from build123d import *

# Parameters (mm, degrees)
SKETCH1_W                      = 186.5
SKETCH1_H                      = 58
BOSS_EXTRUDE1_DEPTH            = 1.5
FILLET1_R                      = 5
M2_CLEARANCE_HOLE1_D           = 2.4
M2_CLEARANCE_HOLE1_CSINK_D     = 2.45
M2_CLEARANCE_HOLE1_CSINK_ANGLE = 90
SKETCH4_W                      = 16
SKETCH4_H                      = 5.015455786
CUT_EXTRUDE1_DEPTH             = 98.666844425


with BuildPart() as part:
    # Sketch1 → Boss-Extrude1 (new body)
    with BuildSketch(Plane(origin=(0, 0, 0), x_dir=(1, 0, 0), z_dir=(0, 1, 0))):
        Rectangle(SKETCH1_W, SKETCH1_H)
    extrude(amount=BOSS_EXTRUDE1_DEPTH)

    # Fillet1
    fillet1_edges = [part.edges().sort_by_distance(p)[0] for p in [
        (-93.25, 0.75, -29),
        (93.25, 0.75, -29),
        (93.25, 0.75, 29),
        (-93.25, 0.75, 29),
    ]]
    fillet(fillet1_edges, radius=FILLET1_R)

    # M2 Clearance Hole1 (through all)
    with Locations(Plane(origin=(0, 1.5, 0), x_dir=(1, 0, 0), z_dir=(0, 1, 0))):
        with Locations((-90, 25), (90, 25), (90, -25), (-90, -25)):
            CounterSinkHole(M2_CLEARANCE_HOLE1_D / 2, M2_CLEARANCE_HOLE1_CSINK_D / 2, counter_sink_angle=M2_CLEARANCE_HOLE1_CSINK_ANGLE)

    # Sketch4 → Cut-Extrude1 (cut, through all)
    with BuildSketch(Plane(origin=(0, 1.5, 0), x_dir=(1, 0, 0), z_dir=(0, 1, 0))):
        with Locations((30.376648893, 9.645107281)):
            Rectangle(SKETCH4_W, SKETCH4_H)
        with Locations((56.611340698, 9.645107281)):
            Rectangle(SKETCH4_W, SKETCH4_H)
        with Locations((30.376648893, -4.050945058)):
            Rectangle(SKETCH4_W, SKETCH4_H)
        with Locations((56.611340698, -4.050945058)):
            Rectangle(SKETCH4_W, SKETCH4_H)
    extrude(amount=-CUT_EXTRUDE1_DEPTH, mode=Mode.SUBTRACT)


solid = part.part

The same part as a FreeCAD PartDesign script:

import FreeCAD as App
import Part
import Sketcher

V = App.Vector


def edges_at(feature, points):
    """Names of the edges that pass closest to the given points."""
    edges = feature.Shape.Edges
    near = lambda p: min(range(len(edges)), key=lambda i: edges[i].distToShape(Part.Vertex(*p))[0])
    return sorted({f"Edge{near(p) + 1}" for p in points})


def add_polygon(sketch, points):
    """Adds a closed chain of lines whose ends are joined by coincident constraints."""
    first, n = sketch.GeometryCount, len(points)
    for a, b in zip(points, points[1:] + points[:1]):
        sketch.addGeometry(Part.LineSegment(App.Vector(*a, 0), App.Vector(*b, 0)), False)
    for i in range(n):
        sketch.addConstraint(Sketcher.Constraint("Coincident", first + i, 2, first + (i + 1) % n, 1))

doc = App.newDocument("Part")
body = doc.addObject("PartDesign::Body", "Body")

sketch1 = body.newObject("Sketcher::SketchObject", "Sketch")
sketch1.AttachmentSupport = (doc.getObject("XZ_Plane"), [""])
sketch1.MapMode = "FlatFace"
add_polygon(sketch1, [(-93, -29), (-93, 29), (93, 29), (93, -29)])
sketch1.addConstraint(Sketcher.Constraint("Vertical", 0))
sketch1.addConstraint(Sketcher.Constraint("Horizontal", 1))
sketch1.addConstraint(Sketcher.Constraint("Vertical", 2))
sketch1.addConstraint(Sketcher.Constraint("Horizontal", 3))
sketch1.addConstraint(Sketcher.Constraint("Symmetric", 0, 2, 2, 2, -1, 1))
sketch1.addConstraint(Sketcher.Constraint("DistanceY", 0, 1, 0, 2, 58.0))
sketch1.addConstraint(Sketcher.Constraint("DistanceX", 1, 1, 1, 2, 186.5))
pad1 = body.newObject("PartDesign::Pad", "Pad")
pad1.Profile = sketch1
pad1.Length = 1.5
pad1.Reversed = True
doc.recompute()

fillet = body.newObject("PartDesign::Fillet", "Fillet")
fillet.Base = (pad1, edges_at(pad1, [
    (-93.25, 0.75, -29),
    (93.25, 0.75, -29),
    (93.25, 0.75, 29),
    (-93.25, 0.75, 29),
]))
fillet.Radius = 5

sketch2 = body.newObject("Sketcher::SketchObject", "Sketch001")
sketch2.AttachmentSupport = (doc.getObject("XZ_Plane"), [""])
sketch2.MapMode = "FlatFace"
sketch2.AttachmentOffset = App.Placement(V(0, 0, -1.5), App.Rotation())
sketch2.addGeometry(Part.Circle(V(-90, -25, 0), V(0, 0, 1), 1.2), False)
sketch2.addGeometry(Part.Circle(V(90, -25, 0), V(0, 0, 1), 1.2), False)
sketch2.addGeometry(Part.Circle(V(90, 25, 0), V(0, 0, 1), 1.2), False)
sketch2.addGeometry(Part.Circle(V(-90, 25, 0), V(0, 0, 1), 1.2), False)
sketch2.addConstraint(Sketcher.Constraint("Equal", 0, 1))
sketch2.addConstraint(Sketcher.Constraint("Equal", 1, 2))
sketch2.addConstraint(Sketcher.Constraint("Equal", 2, 3))
sketch2.addConstraint(Sketcher.Constraint("Symmetric", 0, 3, 2, 3, -1, 1))
sketch2.addConstraint(Sketcher.Constraint("Symmetric", 1, 3, 3, 3, -1, 1))
sketch2.addConstraint(Sketcher.Constraint("Symmetric", 0, 3, 1, 3, -2))
sketch2.addConstraint(Sketcher.Constraint("Diameter", 0, 2.4))
sketch2.addConstraint(Sketcher.Constraint("DistanceX", 0, 3, -1, 1, 90.0))
sketch2.addConstraint(Sketcher.Constraint("DistanceY", 0, 3, -1, 1, 25.0))
doc.recompute()
hole = body.newObject("PartDesign::Hole", "Hole")
hole.Profile = sketch2
hole.ThreadType = "None"
hole.Diameter = 2.4
hole.DepthType = "ThroughAll"
hole.HoleCutType = "Countersink"
hole.HoleCutDiameter = 2.45
hole.HoleCutCountersinkAngle = 90
hole.Reversed = True

sketch3 = body.newObject("Sketcher::SketchObject", "Sketch002")
sketch3.AttachmentSupport = (doc.getObject("XZ_Plane"), [""])
sketch3.MapMode = "FlatFace"
sketch3.AttachmentOffset = App.Placement(V(0, 0, -1.5), App.Rotation())
add_polygon(sketch3, [(22, -12), (22, -7), (38, -7), (38, -12)])
add_polygon(sketch3, [(49, -12), (49, -7), (65, -7), (65, -12)])
add_polygon(sketch3, [(22, 2), (22, 7), (38, 7), (38, 2)])
add_polygon(sketch3, [(49, 2), (49, 7), (65, 7), (65, 2)])
sketch3.addConstraint(Sketcher.Constraint("Vertical", 0))
sketch3.addConstraint(Sketcher.Constraint("Horizontal", 1))
sketch3.addConstraint(Sketcher.Constraint("Vertical", 2))
sketch3.addConstraint(Sketcher.Constraint("Horizontal", 3))
sketch3.addConstraint(Sketcher.Constraint("Vertical", 4))
sketch3.addConstraint(Sketcher.Constraint("Horizontal", 5))
sketch3.addConstraint(Sketcher.Constraint("Vertical", 6))
sketch3.addConstraint(Sketcher.Constraint("Horizontal", 7))
sketch3.addConstraint(Sketcher.Constraint("Vertical", 8))
sketch3.addConstraint(Sketcher.Constraint("Horizontal", 9))
sketch3.addConstraint(Sketcher.Constraint("Vertical", 10))
sketch3.addConstraint(Sketcher.Constraint("Horizontal", 11))
sketch3.addConstraint(Sketcher.Constraint("Vertical", 12))
sketch3.addConstraint(Sketcher.Constraint("Horizontal", 13))
sketch3.addConstraint(Sketcher.Constraint("Vertical", 14))
sketch3.addConstraint(Sketcher.Constraint("Horizontal", 15))
sketch3.addConstraint(Sketcher.Constraint("Horizontal", 1, 2, 4, 2))
sketch3.addConstraint(Sketcher.Constraint("Horizontal", 3, 2, 6, 2))
sketch3.addConstraint(Sketcher.Constraint("Horizontal", 9, 2, 12, 2))
sketch3.addConstraint(Sketcher.Constraint("Horizontal", 11, 2, 14, 2))
sketch3.addConstraint(Sketcher.Constraint("Vertical", 3, 2, 8, 2))
sketch3.addConstraint(Sketcher.Constraint("Vertical", 2, 2, 9, 2))
sketch3.addConstraint(Sketcher.Constraint("Vertical", 7, 2, 12, 2))
sketch3.addConstraint(Sketcher.Constraint("Vertical", 6, 2, 13, 2))
sketch3.addConstraint(Sketcher.Constraint("Equal", 3, 5))
sketch3.addConstraint(Sketcher.Constraint("Equal", 6, 8))
sketch3.addConstraint(Sketcher.Constraint("DistanceX", 1, 1, 1, 2, 16.0))
sketch3.addConstraint(Sketcher.Constraint("DistanceY", 0, 1, 0, 2, 5.015456))
sketch3.addConstraint(Sketcher.Constraint("DistanceX", -1, 1, 0, 2, 22.376649))
sketch3.addConstraint(Sketcher.Constraint("DistanceY", 0, 2, -1, 1, 7.137379))
sketch3.addConstraint(Sketcher.Constraint("DistanceX", -1, 1, 4, 2, 48.611341))
sketch3.addConstraint(Sketcher.Constraint("DistanceY", 3, 2, 8, 2, 18.711508))
pocket1 = body.newObject("PartDesign::Pocket", "Pocket")
pocket1.Profile = sketch3
pocket1.Type = "ThroughAll"
pocket1.Reversed = True

doc.recompute()
